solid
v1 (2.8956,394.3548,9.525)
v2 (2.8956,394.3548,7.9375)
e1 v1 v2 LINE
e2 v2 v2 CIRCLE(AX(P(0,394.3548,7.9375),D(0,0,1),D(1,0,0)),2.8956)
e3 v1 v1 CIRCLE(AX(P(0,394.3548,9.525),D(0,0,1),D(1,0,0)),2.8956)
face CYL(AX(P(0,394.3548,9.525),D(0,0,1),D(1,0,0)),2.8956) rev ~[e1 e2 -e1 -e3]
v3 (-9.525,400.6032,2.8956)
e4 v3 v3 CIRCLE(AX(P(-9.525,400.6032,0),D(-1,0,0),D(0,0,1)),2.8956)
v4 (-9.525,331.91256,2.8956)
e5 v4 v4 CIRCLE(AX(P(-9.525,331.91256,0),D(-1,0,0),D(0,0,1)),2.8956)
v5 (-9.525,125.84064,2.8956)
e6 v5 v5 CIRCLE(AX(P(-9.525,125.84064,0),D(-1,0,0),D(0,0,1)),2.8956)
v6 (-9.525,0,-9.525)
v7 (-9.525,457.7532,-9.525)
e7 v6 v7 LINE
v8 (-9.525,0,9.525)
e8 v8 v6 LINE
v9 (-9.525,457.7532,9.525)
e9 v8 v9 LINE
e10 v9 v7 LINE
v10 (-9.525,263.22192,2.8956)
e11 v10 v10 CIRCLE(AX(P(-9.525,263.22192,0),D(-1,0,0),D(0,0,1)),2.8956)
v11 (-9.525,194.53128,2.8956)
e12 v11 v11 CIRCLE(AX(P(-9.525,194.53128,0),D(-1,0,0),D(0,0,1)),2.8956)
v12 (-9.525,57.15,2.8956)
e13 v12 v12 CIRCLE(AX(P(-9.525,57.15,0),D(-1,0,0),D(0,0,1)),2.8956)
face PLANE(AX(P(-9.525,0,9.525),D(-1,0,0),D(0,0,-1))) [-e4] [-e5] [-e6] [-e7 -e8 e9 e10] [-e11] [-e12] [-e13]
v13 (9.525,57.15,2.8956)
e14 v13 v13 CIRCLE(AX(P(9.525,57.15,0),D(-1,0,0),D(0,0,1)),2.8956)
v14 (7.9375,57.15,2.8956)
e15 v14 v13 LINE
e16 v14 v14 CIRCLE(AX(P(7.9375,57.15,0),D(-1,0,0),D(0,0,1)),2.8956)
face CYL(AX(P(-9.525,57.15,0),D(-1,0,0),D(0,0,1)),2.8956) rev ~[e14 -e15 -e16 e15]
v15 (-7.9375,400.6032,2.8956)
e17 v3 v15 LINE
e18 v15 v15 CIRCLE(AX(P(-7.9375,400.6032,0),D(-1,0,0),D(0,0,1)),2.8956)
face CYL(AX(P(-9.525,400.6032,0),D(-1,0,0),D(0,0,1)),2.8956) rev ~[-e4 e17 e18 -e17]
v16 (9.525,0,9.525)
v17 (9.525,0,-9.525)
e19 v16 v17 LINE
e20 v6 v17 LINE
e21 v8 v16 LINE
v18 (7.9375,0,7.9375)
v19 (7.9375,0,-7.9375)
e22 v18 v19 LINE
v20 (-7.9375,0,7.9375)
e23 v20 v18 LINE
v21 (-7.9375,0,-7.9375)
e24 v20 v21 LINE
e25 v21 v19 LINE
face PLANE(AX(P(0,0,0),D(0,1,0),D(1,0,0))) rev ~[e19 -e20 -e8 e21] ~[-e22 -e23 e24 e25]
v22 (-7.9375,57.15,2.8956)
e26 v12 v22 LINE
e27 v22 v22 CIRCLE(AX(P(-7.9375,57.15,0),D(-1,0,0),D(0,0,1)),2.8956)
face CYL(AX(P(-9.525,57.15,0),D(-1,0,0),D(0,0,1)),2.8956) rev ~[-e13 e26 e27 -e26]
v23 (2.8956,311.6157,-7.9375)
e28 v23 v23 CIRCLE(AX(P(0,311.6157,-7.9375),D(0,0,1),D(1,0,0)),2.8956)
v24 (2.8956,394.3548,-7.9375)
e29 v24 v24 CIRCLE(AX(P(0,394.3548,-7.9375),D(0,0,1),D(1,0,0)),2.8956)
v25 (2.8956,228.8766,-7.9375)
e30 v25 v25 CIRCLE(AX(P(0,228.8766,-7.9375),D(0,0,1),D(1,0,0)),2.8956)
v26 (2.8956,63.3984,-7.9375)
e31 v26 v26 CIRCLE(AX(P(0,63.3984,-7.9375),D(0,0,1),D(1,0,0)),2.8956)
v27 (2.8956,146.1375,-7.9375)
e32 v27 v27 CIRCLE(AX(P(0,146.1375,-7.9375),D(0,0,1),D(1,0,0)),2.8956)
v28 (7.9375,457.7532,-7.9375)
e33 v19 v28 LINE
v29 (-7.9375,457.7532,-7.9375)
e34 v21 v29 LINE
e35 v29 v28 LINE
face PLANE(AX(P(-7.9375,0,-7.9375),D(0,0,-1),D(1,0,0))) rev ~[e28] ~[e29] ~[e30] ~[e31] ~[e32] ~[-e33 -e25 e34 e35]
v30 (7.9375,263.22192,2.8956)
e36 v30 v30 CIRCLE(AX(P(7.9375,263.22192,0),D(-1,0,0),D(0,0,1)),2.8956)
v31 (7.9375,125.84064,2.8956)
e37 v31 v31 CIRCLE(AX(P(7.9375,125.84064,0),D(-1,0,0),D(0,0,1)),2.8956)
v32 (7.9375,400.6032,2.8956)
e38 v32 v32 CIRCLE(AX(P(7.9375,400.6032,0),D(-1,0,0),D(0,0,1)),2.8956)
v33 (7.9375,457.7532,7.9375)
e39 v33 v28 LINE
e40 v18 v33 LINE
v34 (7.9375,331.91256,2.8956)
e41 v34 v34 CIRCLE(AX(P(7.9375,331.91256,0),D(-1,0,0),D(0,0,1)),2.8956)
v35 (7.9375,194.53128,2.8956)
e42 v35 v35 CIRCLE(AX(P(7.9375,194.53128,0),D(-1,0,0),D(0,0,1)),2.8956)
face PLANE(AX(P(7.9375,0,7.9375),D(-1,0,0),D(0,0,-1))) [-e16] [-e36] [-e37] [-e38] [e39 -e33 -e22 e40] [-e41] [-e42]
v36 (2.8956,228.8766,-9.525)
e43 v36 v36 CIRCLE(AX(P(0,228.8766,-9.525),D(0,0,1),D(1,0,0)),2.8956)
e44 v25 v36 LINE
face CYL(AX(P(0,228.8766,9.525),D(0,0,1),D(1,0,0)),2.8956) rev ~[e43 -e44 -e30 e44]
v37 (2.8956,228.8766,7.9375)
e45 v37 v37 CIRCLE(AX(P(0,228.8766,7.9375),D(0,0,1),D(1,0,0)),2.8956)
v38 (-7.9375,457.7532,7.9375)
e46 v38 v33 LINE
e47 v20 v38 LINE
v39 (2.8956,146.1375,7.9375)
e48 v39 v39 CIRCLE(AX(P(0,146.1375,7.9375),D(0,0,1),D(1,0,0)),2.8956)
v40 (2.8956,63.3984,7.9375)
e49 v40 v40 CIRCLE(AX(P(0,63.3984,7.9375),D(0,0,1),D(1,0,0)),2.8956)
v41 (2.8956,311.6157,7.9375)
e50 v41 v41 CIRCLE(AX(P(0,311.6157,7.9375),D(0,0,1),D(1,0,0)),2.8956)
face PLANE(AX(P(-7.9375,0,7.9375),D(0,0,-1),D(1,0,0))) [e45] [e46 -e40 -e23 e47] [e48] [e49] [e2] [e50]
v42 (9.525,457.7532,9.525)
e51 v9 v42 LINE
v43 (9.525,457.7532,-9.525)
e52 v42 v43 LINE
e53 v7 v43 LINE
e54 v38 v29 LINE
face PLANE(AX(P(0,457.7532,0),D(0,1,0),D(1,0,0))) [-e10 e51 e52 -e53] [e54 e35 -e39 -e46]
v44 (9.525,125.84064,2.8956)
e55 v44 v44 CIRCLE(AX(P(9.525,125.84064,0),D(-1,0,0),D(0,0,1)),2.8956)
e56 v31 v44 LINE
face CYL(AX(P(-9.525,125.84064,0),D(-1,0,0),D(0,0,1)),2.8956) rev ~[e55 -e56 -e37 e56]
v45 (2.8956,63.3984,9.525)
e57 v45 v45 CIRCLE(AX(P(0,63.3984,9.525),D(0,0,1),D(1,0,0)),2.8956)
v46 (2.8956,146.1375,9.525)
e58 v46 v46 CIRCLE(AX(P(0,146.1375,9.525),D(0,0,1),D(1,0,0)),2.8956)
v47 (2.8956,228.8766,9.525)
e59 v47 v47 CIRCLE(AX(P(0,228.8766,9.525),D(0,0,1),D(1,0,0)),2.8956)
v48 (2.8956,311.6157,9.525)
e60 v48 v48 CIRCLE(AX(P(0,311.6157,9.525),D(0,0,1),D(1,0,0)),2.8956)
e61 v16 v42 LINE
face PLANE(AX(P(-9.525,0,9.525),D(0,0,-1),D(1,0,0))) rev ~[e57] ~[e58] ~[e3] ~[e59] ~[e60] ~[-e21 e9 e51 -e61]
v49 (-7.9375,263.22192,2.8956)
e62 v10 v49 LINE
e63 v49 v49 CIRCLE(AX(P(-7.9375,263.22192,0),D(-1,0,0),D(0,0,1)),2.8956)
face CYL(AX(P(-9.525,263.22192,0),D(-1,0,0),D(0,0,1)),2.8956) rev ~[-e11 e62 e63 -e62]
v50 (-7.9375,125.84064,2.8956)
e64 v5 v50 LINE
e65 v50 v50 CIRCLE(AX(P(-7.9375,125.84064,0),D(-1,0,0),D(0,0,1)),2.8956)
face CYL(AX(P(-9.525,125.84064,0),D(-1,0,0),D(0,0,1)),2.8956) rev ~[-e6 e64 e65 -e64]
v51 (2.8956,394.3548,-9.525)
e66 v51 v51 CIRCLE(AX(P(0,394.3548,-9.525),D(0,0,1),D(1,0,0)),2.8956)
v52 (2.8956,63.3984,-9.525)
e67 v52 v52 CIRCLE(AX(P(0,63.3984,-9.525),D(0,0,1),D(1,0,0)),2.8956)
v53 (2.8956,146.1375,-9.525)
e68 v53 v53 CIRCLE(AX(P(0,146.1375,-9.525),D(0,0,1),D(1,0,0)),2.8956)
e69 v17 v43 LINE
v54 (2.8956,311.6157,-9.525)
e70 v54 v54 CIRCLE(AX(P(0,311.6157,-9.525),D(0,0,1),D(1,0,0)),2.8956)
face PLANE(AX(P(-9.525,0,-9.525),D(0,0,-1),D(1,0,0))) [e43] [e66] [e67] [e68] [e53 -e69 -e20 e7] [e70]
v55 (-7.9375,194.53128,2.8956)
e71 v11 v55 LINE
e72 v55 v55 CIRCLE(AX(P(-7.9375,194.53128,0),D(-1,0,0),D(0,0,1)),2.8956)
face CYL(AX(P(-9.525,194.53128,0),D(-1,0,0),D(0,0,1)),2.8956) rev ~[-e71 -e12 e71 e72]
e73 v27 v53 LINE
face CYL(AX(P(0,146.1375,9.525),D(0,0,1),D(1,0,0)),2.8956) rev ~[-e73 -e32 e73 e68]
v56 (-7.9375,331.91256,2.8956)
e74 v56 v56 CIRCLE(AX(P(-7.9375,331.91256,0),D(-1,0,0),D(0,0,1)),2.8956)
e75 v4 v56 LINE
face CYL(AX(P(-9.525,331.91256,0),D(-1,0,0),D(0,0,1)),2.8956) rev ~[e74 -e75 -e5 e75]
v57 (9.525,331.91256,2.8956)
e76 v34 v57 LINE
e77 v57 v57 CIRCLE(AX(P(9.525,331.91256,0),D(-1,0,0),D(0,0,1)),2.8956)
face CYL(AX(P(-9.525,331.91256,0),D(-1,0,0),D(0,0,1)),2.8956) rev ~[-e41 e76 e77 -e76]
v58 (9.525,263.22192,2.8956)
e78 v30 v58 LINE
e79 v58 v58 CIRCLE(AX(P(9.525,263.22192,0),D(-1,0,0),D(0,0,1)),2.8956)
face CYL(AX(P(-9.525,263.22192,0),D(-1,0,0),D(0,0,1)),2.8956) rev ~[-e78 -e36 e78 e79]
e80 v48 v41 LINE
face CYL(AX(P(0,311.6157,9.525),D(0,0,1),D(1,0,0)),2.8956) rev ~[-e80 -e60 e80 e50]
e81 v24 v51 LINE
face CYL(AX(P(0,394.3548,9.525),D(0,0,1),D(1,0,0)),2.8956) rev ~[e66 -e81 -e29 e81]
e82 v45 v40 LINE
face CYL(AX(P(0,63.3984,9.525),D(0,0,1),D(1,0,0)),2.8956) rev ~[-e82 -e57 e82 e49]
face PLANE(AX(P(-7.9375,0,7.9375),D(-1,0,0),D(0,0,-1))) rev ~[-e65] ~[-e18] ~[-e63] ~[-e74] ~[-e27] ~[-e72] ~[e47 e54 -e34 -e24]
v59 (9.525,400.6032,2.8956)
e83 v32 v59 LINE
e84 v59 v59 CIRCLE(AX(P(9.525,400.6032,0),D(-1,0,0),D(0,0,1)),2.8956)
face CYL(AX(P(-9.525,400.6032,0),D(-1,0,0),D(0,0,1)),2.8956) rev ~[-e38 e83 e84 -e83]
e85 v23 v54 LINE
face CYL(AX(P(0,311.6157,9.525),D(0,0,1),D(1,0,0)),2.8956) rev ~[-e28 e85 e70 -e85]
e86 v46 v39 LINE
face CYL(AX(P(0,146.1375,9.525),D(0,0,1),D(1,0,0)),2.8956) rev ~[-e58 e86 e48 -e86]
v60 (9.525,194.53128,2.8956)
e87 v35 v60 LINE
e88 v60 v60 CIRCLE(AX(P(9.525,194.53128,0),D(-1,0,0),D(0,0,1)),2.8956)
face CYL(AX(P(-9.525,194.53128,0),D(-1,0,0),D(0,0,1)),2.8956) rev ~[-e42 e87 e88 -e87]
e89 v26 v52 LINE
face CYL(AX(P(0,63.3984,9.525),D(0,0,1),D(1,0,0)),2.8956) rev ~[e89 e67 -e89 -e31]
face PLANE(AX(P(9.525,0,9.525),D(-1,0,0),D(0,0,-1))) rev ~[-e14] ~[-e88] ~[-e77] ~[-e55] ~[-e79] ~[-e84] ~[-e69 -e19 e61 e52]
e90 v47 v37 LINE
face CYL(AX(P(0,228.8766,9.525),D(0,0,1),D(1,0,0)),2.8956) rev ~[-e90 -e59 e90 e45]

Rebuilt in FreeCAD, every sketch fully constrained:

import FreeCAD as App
import Part
import Sketcher
Q = App.Units.Quantity

doc = App.newDocument("Part")
params = doc.addObject("Spreadsheet::Sheet", "Params")
for row, (alias, value) in enumerate([
    ("sketch1_width", "0.75 in"),
    ("sketch1_width2", "0.625 in"),
    ("pad1_length", "457.7532 mm"),
    ("sketch2_diameter", "0.228 in"),
    ("linearpattern_pitch", "82.7391 mm"),
    ("sketch3_diameter", "0.228 in"),
    ("linearpattern2_pitch", "68.69064 mm"),
], start=1):
    params.set(f"A{row}", alias)
    params.set(f"B{row}", "=" + value)
    params.setAlias(f"B{row}", alias)

body = doc.addObject("PartDesign::Body", "Body")

sketch1 = body.newObject("Sketcher::SketchObject", "Sketch")
sketch1.AttachmentSupport = (doc.getObject("XZ_Plane"), [""])
sketch1.MapMode = "FlatFace"
sketch1.addGeometry([
    Part.LineSegment(App.Vector(-9.525, -9.525, 0), App.Vector(-9.525, 9.525, 0)),
    Part.LineSegment(App.Vector(-9.525, 9.525, 0), App.Vector(9.525, 9.525, 0)),
    Part.LineSegment(App.Vector(9.525, 9.525, 0), App.Vector(9.525, -9.525, 0)),
    Part.LineSegment(App.Vector(9.525, -9.525, 0), App.Vector(-9.525, -9.525, 0)),
    Part.LineSegment(App.Vector(7.9375, 7.9375, 0), App.Vector(-7.9375, 7.9375, 0)),
    Part.LineSegment(App.Vector(-7.9375, 7.9375, 0), App.Vector(-7.9375, -7.9375, 0)),
    Part.LineSegment(App.Vector(-7.9375, -7.9375, 0), App.Vector(7.9375, -7.9375, 0)),
    Part.LineSegment(App.Vector(7.9375, -7.9375, 0), App.Vector(7.9375, 7.9375, 0)),
], False)
sketch1.addConstraint([
    Sketcher.Constraint("Coincident", 0, 2, 1, 1),
    Sketcher.Constraint("Coincident", 1, 2, 2, 1),
    Sketcher.Constraint("Coincident", 2, 2, 3, 1),
    Sketcher.Constraint("Coincident", 3, 2, 0, 1),
    Sketcher.Constraint("Coincident", 4, 2, 5, 1),
    Sketcher.Constraint("Coincident", 5, 2, 6, 1),
    Sketcher.Constraint("Coincident", 6, 2, 7, 1),
    Sketcher.Constraint("Coincident", 7, 2, 4, 1),
    Sketcher.Constraint("Vertical", 0),
    Sketcher.Constraint("Horizontal", 1),
    Sketcher.Constraint("Vertical", 2),
    Sketcher.Constraint("Horizontal", 3),
    Sketcher.Constraint("Horizontal", 4),
    Sketcher.Constraint("Vertical", 5),
    Sketcher.Constraint("Horizontal", 6),
    Sketcher.Constraint("Vertical", 7),
    Sketcher.Constraint("Symmetric", 0, 2, 2, 2, -1, 1),
    Sketcher.Constraint("Symmetric", 4, 2, 6, 2, -1, 1),
    Sketcher.Constraint("Equal", 3, 0),
    Sketcher.Constraint("Equal", 6, 5),
    Sketcher.Constraint("DistanceX", 1, 1, 1, 2, Q("0.75 in")),
    Sketcher.Constraint("DistanceX", 4, 2, 4, 1, Q("0.625 in")),
])
sketch1.setExpression("Constraints[20]", "Params.sketch1_width")
sketch1.setExpression("Constraints[21]", "Params.sketch1_width2")
pad1 = body.newObject("PartDesign::Pad", "Pad")
pad1.Profile = sketch1
pad1.setExpression("Length", "Params.pad1_length")
pad1.Reversed = True

sketch2 = body.newObject("Sketcher::SketchObject", "Sketch001")
sketch2.AttachmentSupport = (doc.getObject("XY_Plane"), [""])
sketch2.MapMode = "FlatFace"
sketch2.AttachmentOffset = App.Placement(App.Vector(0, 0, 0.375 * 25.4), App.Rotation())
sketch2.addGeometry(Part.Circle(App.Vector(0, 394.3548, 0), App.Vector(0, 0, 1), 2.8956), False)
sketch2.addConstraint([
    Sketcher.Constraint("PointOnObject", 0, 3, -2),
    Sketcher.Constraint("Diameter", 0, Q("0.228 in")),
    Sketcher.Constraint("DistanceY", -1, 1, 0, 3, Q("394.3548 mm")),
])
sketch2.setExpression("Constraints[1]", "Params.sketch2_diameter")
pocket1 = body.newObject("PartDesign::Pocket", "Pocket")
pocket1.Profile = sketch2
pocket1.Type = "ThroughAll"
doc.recompute()

linearpattern = body.newObject("PartDesign::LinearPattern", "LinearPattern")
linearpattern.Originals = [pocket1]
linearpattern.Direction = (doc.getObject("Y_Axis"), [""])
linearpattern.Mode = "offset"
linearpattern.setExpression("Offset", "Params.linearpattern_pitch")
linearpattern.Occurrences = 5
linearpattern.Reversed = True
body.Tip = linearpattern

sketch3 = body.newObject("Sketcher::SketchObject", "Sketch002")
sketch3.AttachmentSupport = (doc.getObject("YZ_Plane"), [""])
sketch3.MapMode = "FlatFace"
sketch3.AttachmentOffset = App.Placement(App.Vector(0, 0, -0.375 * 25.4), App.Rotation())
sketch3.addGeometry(Part.Circle(App.Vector(400.6032, 0, 0), App.Vector(0, 0, 1), 2.8956), False)
sketch3.addConstraint([
    Sketcher.Constraint("PointOnObject", 0, 3, -1),
    Sketcher.Constraint("Diameter", 0, Q("0.228 in")),
    Sketcher.Constraint("DistanceX", -1, 1, 0, 3, Q("400.6032 mm")),
])
sketch3.setExpression("Constraints[1]", "Params.sketch3_diameter")
pocket2 = body.newObject("PartDesign::Pocket", "Pocket001")
pocket2.Profile = sketch3
pocket2.Type = "ThroughAll"
pocket2.Reversed = True
doc.recompute()

linearpattern2 = body.newObject("PartDesign::LinearPattern", "LinearPattern001")
linearpattern2.Originals = [pocket2]
linearpattern2.Direction = (doc.getObject("Y_Axis"), [""])
linearpattern2.Mode = "offset"
linearpattern2.setExpression("Offset", "Params.linearpattern2_pitch")
linearpattern2.Occurrences = 6
linearpattern2.Reversed = True
body.Tip = linearpattern2

doc.recompute()
